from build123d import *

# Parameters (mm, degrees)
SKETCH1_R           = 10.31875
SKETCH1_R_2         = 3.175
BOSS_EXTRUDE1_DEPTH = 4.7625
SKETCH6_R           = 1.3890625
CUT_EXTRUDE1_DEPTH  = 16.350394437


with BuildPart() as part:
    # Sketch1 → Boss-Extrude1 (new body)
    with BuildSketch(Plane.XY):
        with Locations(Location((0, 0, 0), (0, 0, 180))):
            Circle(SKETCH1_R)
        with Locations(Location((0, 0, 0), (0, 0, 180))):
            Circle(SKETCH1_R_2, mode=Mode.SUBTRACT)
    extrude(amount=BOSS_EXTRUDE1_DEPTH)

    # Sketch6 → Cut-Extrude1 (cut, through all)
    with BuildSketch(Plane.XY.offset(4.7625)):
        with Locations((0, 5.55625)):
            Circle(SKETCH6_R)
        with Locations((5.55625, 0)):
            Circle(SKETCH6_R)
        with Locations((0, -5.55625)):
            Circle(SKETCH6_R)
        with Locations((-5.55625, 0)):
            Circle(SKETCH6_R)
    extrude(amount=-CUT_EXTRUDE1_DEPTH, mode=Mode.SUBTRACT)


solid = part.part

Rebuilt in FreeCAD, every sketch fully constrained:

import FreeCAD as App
import Part
import Sketcher
Q = App.Units.Quantity

doc = App.newDocument("Part")
body = doc.addObject("PartDesign::Body", "Body")

# Sketch on XY plane
sketch1 = body.newObject("Sketcher::SketchObject", "Sketch")
sketch1.AttachmentSupport = (doc.getObject("XY_Plane"), [""])
sketch1.MapMode = "FlatFace"
sketch1.addGeometry(Part.Circle(App.Vector(0, 0, 0), App.Vector(0, 0, 1), 10.31875), False)
sketch1.addGeometry(Part.Circle(App.Vector(0, 0, 0), App.Vector(0, 0, 1), 3.175), False)
sketch1.addConstraint(Sketcher.Constraint("Coincident", 0, 3, -1, 1))
sketch1.addConstraint(Sketcher.Constraint("Coincident", 1, 3, -1, 1))
sketch1.addConstraint(Sketcher.Constraint("Diameter", 1, Q("0.25 in")))
sketch1.addConstraint(Sketcher.Constraint("Diameter", 0, Q("0.8125 in")))
pad1 = body.newObject("PartDesign::Pad", "Pad")
pad1.Profile = sketch1
pad1.Length = Q("0.1875 in")

# Sketch on XY plane
sketch2 = body.newObject("Sketcher::SketchObject", "Sketch001")
sketch2.AttachmentSupport = (doc.getObject("XY_Plane"), [""])
sketch2.MapMode = "FlatFace"
sketch2.AttachmentOffset = App.Placement(App.Vector(0, 0, 0.1875 * 25.4), App.Rotation())
sketch2.addGeometry(Part.Circle(App.Vector(0, 5.55625, 0), App.Vector(0, 0, 1), 1.389063), False)
sketch2.addGeometry(Part.Circle(App.Vector(5.55625, 0, 0), App.Vector(0, 0, 1), 1.389063), False)
sketch2.addGeometry(Part.Circle(App.Vector(0, -5.55625, 0), App.Vector(0, 0, 1), 1.389063), False)
sketch2.addGeometry(Part.Circle(App.Vector(-5.55625, 0, 0), App.Vector(0, 0, 1), 1.389063), False)
sketch2.addConstraint(Sketcher.Constraint("Equal", 0, 1))
sketch2.addConstraint(Sketcher.Constraint("Equal", 1, 2))
sketch2.addConstraint(Sketcher.Constraint("Equal", 2, 3))
sketch2.addConstraint(Sketcher.Constraint("Symmetric", 0, 3, 2, 3, -1, 1))
sketch2.addConstraint(Sketcher.Constraint("Symmetric", 1, 3, 3, 3, -1, 1))
sketch2.addConstraint(Sketcher.Constraint("PointOnObject", 0, 3, -2))
sketch2.addConstraint(Sketcher.Constraint("PointOnObject", 1, 3, -1))
sketch2.addConstraint(Sketcher.Constraint("Diameter", 0, Q("0.109375 in")))
sketch2.addConstraint(Sketcher.Constraint("DistanceY", -1, 1, 0, 3, Q("0.21875 in")))
sketch2.addConstraint(Sketcher.Constraint("DistanceX", -1, 1, 1, 3, Q("0.21875 in")))
pocket1 = body.newObject("PartDesign::Pocket", "Pocket")
pocket1.Profile = sketch2
pocket1.Type = "ThroughAll"

doc.recompute()
